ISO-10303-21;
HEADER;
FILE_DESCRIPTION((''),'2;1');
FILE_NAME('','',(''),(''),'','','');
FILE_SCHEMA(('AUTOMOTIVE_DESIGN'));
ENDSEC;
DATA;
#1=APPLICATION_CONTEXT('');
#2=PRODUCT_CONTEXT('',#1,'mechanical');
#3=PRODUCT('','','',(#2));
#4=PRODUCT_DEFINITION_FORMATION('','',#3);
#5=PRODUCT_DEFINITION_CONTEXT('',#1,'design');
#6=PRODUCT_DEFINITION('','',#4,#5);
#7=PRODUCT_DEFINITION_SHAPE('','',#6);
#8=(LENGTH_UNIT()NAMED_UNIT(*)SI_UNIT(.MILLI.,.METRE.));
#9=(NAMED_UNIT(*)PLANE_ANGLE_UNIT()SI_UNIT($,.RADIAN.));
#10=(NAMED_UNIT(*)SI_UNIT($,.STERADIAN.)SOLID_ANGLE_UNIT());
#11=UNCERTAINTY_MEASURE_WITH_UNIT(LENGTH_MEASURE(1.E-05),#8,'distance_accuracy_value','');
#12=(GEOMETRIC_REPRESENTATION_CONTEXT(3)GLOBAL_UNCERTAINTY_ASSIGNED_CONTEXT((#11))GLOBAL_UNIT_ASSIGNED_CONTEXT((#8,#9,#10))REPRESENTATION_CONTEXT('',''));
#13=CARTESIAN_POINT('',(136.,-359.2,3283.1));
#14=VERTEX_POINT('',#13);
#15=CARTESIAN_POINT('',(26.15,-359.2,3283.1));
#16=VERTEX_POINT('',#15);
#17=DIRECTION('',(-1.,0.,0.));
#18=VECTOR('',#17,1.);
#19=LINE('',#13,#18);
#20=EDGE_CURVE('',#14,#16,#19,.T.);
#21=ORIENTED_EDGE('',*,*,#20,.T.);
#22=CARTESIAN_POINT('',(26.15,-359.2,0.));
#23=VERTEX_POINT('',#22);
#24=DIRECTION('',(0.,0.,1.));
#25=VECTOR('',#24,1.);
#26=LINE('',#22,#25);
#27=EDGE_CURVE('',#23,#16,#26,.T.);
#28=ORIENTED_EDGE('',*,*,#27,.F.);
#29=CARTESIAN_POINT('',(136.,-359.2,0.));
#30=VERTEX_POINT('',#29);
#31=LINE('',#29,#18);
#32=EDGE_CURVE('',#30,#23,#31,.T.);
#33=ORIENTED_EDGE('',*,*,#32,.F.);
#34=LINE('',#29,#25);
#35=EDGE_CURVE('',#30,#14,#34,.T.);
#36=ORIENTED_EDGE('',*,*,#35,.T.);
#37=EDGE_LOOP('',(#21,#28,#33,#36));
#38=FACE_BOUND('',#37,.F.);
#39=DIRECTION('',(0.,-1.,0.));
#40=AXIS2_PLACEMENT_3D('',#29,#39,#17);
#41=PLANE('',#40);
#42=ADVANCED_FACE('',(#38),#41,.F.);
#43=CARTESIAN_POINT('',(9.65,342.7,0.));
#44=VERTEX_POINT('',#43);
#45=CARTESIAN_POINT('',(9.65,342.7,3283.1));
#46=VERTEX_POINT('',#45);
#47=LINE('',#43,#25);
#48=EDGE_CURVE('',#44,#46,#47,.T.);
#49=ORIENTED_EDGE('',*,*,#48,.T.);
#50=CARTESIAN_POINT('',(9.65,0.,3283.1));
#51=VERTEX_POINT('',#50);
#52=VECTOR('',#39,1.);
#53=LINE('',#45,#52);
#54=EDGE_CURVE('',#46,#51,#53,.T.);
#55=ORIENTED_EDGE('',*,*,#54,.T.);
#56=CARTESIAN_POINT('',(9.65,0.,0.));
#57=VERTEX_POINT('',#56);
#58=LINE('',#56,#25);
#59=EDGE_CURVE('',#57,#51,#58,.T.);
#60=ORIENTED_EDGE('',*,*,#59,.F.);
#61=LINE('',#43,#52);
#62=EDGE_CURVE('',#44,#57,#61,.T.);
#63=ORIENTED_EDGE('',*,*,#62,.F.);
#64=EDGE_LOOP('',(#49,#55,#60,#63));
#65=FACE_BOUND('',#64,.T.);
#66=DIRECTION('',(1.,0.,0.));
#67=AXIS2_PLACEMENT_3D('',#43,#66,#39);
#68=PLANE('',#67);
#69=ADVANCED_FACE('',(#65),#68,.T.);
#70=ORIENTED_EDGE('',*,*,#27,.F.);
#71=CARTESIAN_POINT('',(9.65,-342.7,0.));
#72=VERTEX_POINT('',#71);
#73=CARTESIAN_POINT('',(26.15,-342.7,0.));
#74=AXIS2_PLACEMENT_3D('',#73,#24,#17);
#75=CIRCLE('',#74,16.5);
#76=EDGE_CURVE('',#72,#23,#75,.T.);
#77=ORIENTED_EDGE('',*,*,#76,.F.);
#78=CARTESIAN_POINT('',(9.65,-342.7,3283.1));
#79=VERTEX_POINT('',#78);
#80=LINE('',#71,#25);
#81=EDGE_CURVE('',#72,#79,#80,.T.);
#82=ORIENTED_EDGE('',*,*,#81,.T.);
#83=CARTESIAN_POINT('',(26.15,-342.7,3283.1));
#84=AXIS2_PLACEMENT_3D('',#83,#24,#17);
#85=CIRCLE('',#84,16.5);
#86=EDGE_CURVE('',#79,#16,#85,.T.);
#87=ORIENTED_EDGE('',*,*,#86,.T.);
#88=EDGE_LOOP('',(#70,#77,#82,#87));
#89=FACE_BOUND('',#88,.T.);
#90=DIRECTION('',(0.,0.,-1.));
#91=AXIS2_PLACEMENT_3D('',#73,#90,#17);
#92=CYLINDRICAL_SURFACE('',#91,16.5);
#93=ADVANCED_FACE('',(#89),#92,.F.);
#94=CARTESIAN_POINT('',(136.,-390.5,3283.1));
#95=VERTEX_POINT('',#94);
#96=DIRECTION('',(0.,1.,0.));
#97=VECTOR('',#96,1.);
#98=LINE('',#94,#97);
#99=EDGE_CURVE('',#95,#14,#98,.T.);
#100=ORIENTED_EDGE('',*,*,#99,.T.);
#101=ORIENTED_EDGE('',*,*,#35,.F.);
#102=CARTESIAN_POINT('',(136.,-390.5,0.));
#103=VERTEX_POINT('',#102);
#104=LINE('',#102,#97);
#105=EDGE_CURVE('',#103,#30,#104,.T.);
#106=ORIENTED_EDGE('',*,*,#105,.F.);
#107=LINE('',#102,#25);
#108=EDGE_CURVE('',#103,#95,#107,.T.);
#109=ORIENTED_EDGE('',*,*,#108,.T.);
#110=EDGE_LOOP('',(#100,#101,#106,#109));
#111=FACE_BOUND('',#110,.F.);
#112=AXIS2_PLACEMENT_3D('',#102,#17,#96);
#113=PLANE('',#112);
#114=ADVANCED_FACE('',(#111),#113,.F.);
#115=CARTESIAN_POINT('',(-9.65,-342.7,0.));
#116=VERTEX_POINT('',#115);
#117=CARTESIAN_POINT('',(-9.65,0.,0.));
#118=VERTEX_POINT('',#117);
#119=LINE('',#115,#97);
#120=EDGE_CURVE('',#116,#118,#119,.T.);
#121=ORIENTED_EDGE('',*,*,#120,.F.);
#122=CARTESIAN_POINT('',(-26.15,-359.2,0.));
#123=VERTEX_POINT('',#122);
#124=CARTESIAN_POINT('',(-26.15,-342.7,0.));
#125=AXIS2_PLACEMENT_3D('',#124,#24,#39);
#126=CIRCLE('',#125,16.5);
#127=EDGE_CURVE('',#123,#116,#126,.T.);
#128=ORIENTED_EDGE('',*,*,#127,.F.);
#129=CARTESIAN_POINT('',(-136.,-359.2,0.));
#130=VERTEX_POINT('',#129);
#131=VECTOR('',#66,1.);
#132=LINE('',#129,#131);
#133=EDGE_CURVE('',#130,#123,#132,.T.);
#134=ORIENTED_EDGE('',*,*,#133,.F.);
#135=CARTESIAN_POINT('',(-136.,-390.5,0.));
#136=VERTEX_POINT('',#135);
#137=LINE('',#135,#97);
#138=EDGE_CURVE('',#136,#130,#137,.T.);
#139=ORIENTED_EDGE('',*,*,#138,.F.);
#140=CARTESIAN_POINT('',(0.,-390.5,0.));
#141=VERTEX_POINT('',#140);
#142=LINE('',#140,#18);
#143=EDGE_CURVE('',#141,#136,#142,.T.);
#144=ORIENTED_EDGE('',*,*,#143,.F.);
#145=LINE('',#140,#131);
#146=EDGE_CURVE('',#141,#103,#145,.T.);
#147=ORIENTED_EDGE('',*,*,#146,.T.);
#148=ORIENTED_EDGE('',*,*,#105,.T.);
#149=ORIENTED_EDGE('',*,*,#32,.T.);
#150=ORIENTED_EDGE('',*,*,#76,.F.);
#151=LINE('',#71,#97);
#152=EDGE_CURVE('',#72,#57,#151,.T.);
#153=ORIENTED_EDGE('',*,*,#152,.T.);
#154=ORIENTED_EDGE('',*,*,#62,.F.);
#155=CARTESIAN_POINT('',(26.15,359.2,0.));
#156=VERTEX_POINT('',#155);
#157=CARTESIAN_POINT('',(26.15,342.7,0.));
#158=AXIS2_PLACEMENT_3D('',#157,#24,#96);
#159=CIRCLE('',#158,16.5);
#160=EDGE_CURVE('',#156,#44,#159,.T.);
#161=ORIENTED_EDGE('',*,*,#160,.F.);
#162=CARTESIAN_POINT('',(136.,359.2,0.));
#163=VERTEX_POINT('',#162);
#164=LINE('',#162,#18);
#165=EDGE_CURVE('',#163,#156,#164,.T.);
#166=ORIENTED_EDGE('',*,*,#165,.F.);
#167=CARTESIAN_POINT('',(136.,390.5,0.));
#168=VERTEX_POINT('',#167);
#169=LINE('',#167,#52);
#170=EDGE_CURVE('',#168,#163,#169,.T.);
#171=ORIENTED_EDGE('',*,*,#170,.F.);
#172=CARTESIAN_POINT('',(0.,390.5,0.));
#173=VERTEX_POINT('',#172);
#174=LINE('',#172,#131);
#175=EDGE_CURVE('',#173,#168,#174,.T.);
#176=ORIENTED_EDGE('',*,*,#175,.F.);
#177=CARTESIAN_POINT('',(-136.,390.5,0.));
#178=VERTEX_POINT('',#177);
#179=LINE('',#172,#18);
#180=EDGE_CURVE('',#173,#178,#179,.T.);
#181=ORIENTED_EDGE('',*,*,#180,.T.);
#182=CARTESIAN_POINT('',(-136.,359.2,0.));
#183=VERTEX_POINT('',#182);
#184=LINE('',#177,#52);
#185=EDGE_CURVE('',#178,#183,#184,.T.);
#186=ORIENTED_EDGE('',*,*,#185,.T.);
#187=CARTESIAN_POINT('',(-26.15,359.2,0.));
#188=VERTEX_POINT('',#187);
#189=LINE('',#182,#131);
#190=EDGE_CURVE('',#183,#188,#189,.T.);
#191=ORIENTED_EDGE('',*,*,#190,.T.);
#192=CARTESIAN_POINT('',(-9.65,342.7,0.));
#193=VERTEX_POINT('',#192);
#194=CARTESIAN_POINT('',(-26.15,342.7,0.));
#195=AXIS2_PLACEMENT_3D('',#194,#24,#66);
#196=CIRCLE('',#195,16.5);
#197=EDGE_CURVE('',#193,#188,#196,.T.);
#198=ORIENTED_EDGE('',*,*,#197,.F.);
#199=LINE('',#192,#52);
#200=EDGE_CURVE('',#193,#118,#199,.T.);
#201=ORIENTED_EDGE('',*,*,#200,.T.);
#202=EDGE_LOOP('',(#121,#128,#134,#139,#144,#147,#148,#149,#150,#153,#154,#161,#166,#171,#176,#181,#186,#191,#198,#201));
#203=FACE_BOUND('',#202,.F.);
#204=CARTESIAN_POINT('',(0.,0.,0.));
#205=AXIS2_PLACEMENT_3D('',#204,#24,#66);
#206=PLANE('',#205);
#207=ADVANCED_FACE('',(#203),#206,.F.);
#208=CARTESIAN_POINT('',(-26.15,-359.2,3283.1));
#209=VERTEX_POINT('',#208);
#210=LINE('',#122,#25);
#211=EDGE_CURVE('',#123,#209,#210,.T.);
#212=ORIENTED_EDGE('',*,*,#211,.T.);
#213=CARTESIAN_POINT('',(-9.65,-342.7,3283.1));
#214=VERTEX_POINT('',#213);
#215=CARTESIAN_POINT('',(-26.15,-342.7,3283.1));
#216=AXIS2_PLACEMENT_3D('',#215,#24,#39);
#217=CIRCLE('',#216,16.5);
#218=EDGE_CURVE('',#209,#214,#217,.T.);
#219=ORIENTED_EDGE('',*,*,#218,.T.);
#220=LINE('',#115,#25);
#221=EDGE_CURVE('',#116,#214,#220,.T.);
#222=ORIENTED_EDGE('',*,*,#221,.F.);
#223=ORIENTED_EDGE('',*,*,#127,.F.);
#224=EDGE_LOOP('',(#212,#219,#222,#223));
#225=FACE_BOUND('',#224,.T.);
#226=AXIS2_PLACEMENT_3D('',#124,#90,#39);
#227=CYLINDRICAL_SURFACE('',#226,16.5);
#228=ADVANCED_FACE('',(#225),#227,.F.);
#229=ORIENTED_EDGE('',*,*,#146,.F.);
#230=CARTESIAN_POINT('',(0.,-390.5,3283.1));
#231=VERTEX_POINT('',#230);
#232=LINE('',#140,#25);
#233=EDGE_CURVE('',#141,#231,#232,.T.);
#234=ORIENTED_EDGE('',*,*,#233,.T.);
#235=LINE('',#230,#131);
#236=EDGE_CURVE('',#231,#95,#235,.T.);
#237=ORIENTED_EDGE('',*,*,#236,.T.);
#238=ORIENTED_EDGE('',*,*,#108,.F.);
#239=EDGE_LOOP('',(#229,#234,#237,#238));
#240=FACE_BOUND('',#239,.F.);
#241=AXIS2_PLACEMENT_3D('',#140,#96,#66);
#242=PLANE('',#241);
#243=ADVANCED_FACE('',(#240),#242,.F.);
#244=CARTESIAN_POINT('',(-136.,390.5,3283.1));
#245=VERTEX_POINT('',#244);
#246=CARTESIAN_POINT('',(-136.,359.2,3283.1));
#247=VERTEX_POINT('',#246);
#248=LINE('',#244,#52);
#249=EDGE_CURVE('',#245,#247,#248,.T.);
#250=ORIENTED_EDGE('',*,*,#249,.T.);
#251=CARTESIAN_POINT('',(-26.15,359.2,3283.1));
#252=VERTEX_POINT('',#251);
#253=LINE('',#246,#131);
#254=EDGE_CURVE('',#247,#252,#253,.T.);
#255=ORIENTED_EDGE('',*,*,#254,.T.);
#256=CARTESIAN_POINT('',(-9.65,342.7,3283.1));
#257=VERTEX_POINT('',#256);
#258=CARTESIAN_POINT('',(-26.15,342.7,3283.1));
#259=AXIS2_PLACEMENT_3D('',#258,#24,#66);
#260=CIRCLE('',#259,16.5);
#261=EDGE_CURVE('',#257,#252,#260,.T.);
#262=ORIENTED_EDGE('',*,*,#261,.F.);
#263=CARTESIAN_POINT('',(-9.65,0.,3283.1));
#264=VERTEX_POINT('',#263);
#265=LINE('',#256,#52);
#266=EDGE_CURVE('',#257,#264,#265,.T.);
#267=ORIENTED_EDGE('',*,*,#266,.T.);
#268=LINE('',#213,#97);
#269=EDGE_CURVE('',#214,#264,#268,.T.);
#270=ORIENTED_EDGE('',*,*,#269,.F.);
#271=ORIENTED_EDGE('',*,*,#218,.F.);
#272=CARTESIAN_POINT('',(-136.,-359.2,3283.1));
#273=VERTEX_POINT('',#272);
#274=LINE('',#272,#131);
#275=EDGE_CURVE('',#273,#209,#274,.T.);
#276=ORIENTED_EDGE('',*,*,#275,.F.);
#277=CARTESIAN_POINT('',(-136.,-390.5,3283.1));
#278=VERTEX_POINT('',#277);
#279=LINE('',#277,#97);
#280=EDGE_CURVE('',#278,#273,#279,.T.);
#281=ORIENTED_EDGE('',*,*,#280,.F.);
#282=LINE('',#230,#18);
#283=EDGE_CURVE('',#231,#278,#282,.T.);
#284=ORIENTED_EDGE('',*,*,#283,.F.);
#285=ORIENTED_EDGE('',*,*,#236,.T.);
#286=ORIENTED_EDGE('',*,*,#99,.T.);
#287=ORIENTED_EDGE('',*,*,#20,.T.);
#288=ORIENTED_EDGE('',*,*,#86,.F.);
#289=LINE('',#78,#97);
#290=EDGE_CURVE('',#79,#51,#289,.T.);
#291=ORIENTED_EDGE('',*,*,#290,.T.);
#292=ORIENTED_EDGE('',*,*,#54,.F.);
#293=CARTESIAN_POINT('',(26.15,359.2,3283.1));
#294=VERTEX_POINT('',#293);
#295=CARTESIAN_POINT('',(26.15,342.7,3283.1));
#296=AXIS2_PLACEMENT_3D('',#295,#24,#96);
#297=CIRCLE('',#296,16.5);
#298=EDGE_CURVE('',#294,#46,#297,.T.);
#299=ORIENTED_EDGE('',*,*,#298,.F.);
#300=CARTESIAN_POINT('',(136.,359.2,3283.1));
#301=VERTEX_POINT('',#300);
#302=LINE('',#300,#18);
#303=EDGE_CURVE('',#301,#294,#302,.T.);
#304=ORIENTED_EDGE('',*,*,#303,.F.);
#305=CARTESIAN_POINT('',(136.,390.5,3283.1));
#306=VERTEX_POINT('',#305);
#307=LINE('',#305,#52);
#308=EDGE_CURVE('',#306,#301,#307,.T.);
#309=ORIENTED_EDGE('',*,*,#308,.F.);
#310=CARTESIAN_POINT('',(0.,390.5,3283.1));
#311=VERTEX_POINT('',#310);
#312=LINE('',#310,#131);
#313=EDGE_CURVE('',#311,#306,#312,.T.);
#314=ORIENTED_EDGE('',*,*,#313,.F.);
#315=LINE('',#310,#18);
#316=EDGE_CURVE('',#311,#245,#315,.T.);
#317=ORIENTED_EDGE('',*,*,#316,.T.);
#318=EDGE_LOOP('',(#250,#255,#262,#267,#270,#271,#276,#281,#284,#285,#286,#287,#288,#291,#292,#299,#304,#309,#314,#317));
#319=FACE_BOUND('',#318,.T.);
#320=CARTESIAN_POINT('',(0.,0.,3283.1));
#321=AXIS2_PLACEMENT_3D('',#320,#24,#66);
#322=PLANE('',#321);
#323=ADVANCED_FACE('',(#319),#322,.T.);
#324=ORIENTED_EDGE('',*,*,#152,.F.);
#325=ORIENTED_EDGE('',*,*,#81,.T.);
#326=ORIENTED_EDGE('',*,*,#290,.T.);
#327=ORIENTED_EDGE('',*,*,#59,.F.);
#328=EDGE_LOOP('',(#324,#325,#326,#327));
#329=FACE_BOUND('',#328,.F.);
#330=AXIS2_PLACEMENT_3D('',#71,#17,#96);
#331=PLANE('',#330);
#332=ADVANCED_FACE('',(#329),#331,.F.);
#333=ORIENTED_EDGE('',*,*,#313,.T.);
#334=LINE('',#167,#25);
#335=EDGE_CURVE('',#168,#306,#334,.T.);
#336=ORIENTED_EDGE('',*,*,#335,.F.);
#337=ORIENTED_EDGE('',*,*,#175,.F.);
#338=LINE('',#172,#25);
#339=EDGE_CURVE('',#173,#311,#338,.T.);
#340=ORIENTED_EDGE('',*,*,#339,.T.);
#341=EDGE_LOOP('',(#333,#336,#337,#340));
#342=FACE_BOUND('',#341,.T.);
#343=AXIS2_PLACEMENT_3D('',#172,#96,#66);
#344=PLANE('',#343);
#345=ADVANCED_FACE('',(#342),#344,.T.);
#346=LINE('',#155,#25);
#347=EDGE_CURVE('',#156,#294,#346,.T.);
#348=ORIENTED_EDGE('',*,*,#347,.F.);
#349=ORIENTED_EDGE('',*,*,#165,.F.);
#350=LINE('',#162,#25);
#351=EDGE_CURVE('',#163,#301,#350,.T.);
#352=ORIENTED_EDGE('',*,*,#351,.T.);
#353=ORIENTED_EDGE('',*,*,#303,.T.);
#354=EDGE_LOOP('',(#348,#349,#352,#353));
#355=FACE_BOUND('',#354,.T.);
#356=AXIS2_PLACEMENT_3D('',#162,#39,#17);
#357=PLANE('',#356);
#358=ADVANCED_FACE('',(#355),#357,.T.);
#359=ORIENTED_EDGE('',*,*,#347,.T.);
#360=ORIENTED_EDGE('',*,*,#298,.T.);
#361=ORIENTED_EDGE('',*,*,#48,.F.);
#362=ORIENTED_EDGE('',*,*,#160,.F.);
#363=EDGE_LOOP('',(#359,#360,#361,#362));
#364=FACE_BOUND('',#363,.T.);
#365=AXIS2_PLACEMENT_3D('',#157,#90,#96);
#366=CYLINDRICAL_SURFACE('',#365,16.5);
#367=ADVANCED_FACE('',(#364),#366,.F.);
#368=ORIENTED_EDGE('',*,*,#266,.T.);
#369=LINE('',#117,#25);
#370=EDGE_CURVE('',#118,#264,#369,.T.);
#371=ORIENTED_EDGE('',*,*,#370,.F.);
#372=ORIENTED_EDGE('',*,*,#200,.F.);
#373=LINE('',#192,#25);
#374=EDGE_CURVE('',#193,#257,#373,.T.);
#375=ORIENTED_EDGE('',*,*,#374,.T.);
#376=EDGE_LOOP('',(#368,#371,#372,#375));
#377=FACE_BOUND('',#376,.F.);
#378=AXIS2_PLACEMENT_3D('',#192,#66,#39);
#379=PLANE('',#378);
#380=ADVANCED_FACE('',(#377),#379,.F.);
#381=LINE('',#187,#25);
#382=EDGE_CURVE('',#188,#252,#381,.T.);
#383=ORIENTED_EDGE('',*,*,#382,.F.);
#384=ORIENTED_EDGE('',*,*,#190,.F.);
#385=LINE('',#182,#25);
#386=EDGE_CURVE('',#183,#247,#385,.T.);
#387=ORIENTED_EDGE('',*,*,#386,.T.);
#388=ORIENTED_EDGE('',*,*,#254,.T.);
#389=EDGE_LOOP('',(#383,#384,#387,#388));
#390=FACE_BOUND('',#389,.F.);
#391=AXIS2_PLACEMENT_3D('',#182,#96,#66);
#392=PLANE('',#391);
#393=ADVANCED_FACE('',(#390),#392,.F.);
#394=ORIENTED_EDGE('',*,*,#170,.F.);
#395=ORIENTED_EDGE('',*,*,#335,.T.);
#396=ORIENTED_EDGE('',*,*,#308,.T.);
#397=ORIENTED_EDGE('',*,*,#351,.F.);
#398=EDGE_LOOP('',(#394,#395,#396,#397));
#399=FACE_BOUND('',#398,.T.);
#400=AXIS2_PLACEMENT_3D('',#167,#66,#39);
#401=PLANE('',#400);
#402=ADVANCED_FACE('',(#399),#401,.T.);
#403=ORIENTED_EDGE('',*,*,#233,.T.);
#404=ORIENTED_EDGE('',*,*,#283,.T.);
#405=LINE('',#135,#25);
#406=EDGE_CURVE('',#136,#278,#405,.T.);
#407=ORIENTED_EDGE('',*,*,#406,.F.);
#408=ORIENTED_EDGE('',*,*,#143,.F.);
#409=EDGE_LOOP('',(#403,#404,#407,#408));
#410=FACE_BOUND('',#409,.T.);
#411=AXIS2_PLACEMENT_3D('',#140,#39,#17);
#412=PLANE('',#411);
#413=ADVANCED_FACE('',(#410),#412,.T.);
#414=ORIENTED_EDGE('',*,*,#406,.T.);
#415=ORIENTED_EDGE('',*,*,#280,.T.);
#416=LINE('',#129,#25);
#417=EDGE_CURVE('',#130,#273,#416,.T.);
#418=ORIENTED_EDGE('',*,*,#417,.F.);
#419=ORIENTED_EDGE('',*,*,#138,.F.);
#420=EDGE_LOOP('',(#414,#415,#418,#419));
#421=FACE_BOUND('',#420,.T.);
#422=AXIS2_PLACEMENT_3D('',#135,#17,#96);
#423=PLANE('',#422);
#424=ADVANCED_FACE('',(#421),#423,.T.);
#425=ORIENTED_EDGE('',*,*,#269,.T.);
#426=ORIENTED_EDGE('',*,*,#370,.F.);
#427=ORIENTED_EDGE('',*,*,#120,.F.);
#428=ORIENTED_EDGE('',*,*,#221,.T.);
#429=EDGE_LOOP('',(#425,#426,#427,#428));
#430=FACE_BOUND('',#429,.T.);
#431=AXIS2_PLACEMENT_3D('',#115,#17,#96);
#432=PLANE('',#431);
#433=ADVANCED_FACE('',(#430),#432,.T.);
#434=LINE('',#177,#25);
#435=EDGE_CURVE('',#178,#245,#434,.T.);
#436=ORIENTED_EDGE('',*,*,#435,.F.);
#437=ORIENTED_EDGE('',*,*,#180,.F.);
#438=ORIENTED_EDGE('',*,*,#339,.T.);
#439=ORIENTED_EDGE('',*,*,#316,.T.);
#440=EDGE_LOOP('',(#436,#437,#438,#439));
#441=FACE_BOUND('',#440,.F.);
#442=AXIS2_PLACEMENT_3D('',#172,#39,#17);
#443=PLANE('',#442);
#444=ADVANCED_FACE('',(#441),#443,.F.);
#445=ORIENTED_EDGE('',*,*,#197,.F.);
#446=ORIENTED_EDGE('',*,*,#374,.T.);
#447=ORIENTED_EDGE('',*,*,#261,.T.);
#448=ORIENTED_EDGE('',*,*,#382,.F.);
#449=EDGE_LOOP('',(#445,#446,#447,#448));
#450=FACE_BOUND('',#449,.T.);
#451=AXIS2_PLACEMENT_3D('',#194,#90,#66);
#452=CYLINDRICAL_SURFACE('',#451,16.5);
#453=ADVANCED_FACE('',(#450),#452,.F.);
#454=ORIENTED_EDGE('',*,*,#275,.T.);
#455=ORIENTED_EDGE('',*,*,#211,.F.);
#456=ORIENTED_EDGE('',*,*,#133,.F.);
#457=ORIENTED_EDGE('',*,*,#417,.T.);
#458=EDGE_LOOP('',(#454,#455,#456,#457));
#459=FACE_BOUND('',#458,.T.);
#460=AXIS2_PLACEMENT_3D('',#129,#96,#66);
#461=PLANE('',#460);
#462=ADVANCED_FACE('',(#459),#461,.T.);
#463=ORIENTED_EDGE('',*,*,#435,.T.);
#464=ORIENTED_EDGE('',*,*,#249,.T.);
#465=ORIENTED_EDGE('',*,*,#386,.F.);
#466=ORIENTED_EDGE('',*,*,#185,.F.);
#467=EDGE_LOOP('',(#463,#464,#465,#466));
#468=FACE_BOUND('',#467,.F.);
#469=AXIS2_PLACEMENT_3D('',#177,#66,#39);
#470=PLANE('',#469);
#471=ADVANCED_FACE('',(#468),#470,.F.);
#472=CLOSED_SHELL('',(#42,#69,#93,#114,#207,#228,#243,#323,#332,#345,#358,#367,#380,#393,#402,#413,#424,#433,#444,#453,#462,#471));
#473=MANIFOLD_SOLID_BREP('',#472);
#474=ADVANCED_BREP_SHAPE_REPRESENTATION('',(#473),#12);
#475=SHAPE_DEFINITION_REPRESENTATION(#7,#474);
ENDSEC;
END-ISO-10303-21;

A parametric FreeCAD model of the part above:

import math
import FreeCAD as App
import Part
import Sketcher
Q = App.Units.Quantity

doc = App.newDocument("Part")
body = doc.addObject("PartDesign::Body", "Body")

# Sketch on XY plane
sketch1 = body.newObject("Sketcher::SketchObject", "Sketch")
sketch1.AttachmentSupport = (doc.getObject("XY_Plane"), [""])
sketch1.MapMode = "FlatFace"
sketch1.addGeometry([
    Part.LineSegment(App.Vector(-136, -359, 0), App.Vector(-136, -390, 0)),  # 0
    Part.LineSegment(App.Vector(-136, -390, 0), App.Vector(136, -390, 0)),  # 1
    Part.LineSegment(App.Vector(136, -390, 0), App.Vector(136, -359, 0)),  # 2
    Part.LineSegment(App.Vector(136, -359, 0), App.Vector(26, -359, 0)),  # 3
    Part.ArcOfCircle(Part.Circle(App.Vector(26, -343, 0), App.Vector(0, 0, 1), 16), math.radians(180), math.radians(270)),  # 4
    Part.LineSegment(App.Vector(10, -343, 0), App.Vector(10, 343, 0)),  # 5
    Part.ArcOfCircle(Part.Circle(App.Vector(26, 343, 0), App.Vector(0, 0, 1), 16), math.radians(90), math.radians(180)),  # 6
    Part.LineSegment(App.Vector(26, 359, 0), App.Vector(136, 359, 0)),  # 7
    Part.LineSegment(App.Vector(136, 359, 0), App.Vector(136, 390, 0)),  # 8
    Part.LineSegment(App.Vector(136, 390, 0), App.Vector(-136, 390, 0)),  # 9
    Part.LineSegment(App.Vector(-136, 390, 0), App.Vector(-136, 359, 0)),  # 10
    Part.LineSegment(App.Vector(-136, 359, 0), App.Vector(-26, 359, 0)),  # 11
    Part.ArcOfCircle(Part.Circle(App.Vector(-26, 343, 0), App.Vector(0, 0, 1), 16), math.radians(0), math.radians(90)),  # 12
    Part.LineSegment(App.Vector(-10, 343, 0), App.Vector(-10, -343, 0)),  # 13
    Part.ArcOfCircle(Part.Circle(App.Vector(-26, -343, 0), App.Vector(0, 0, 1), 16), math.radians(-90), math.radians(0)),  # 14
    Part.LineSegment(App.Vector(-26, -359, 0), App.Vector(-136, -359, 0)),  # 15
], False)
sketch1.addConstraint([
    Sketcher.Constraint("Coincident", 0, 2, 1, 1),
    Sketcher.Constraint("Coincident", 1, 2, 2, 1),
    Sketcher.Constraint("Coincident", 2, 2, 3, 1),
    Sketcher.Constraint("Tangent", 3, 2, 4, 2),
    Sketcher.Constraint("Tangent", 4, 1, 5, 1),
    Sketcher.Constraint("Tangent", 5, 2, 6, 2),
    Sketcher.Constraint("Tangent", 6, 1, 7, 1),
    Sketcher.Constraint("Coincident", 7, 2, 8, 1),
    Sketcher.Constraint("Coincident", 8, 2, 9, 1),
    Sketcher.Constraint("Coincident", 9, 2, 10, 1),
    Sketcher.Constraint("Coincident", 10, 2, 11, 1),
    Sketcher.Constraint("Tangent", 11, 2, 12, 2),
    Sketcher.Constraint("Tangent", 12, 1, 13, 1),
    Sketcher.Constraint("Tangent", 13, 2, 14, 2),
    Sketcher.Constraint("Tangent", 14, 1, 15, 1),
    Sketcher.Constraint("Coincident", 15, 2, 0, 1),
    Sketcher.Constraint("Vertical", 0),
    Sketcher.Constraint("Horizontal", 1),
    Sketcher.Constraint("Vertical", 2),
    Sketcher.Constraint("Horizontal", 3),
    Sketcher.Constraint("Vertical", 5),
    Sketcher.Constraint("Horizontal", 7),
    Sketcher.Constraint("Vertical", 8),
    Sketcher.Constraint("Horizontal", 9),
    Sketcher.Constraint("Vertical", 10),
    Sketcher.Constraint("Horizontal", 11),
    Sketcher.Constraint("Vertical", 13),
    Sketcher.Constraint("Horizontal", 15),
    Sketcher.Constraint("Equal", 4, 6),
    Sketcher.Constraint("Equal", 6, 12),
    Sketcher.Constraint("Equal", 12, 14),
    Sketcher.Constraint("Symmetric", 4, 3, 12, 3, -1, 1),
    Sketcher.Constraint("Symmetric", 0, 2, 8, 2, -1, 1),
    Sketcher.Constraint("Symmetric", 7, 2, 10, 2, -2),
    Sketcher.Constraint("Symmetric", 2, 2, 15, 2, -2),
    Sketcher.Constraint("Radius", 4, Q("16.5 mm")),
    Sketcher.Constraint("DistanceY", 0, 2, 0, 1, Q("31.3 mm")),
    Sketcher.Constraint("DistanceX", 0, 2, -1, 1, Q("136 mm")),
    Sketcher.Constraint("DistanceY", 0, 2, -1, 1, Q("390.5 mm")),
    Sketcher.Constraint("DistanceX", -1, 1, 4, 1, Q("9.65 mm")),
])
pad1 = body.newObject("PartDesign::Pad", "Pad")
pad1.Profile = sketch1
pad1.Length = 3283.1

doc.recompute()
